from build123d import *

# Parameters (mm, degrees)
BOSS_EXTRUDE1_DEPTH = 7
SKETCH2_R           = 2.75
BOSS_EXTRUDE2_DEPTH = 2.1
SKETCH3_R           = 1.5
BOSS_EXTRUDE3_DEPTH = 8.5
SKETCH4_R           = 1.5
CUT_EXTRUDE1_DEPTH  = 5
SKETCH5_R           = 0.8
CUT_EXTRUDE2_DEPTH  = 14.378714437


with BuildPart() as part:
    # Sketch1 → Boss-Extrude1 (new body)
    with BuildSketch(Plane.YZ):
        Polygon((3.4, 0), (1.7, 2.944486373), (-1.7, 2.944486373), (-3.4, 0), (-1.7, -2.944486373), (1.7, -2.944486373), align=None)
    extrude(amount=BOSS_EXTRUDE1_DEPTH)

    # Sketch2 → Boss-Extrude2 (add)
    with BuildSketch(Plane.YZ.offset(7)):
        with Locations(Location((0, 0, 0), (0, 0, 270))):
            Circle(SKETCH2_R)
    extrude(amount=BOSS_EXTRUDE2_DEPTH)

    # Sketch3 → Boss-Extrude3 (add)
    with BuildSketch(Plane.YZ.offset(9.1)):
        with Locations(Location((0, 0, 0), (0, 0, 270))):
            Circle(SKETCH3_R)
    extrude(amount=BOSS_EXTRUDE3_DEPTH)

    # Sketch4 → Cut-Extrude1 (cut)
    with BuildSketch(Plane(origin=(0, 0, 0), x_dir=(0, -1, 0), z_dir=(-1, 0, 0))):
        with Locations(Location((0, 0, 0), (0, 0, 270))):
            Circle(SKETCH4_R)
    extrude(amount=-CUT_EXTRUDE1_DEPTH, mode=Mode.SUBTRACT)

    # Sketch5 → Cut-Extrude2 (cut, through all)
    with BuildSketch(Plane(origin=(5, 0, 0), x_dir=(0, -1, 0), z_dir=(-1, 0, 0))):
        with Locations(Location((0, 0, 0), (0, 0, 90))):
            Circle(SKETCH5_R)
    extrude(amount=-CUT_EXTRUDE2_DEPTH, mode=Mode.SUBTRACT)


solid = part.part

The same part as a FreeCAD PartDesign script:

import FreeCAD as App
import Part
import Sketcher
from FreeCAD import Vector
Q = App.Units.Quantity

doc = App.newDocument("Part")
params = doc.addObject("Spreadsheet::Sheet", "Params")
for row, (alias, value) in enumerate([
    ("sketch1_width", "3.4 mm"),
    ("sketch1_length", "3.4 mm"),
    ("pad1_length", "7 mm"),
    ("sketch2_diameter", "5.5 mm"),
    ("pad2_length", "2.1 mm"),
    ("sketch3_diameter", "3 mm"),
    ("pad3_length", "8.5 mm"),
    ("sketch4_diameter", "3 mm"),
    ("pocket1_length", "5 mm"),
    ("sketch5_diameter", "1.6 mm"),
], start=1):
    params.set(f"A{row}", alias)
    params.set(f"B{row}", "=" + value)
    params.setAlias(f"B{row}", alias)

body = doc.addObject("PartDesign::Body", "Body")

# Sketch on YZ plane
sketch1 = body.newObject("Sketcher::SketchObject", "Sketch")
sketch1.AttachmentSupport = (doc.getObject("YZ_Plane"), [""])
sketch1.MapMode = "FlatFace"
sketch1.addGeometry([
    Part.LineSegment(Vector(3.4, 0, 0), Vector(1.7, 2.944486, 0)),  # 0
    Part.LineSegment(Vector(1.7, 2.944486, 0), Vector(-1.7, 2.944486, 0)),  # 1
    Part.LineSegment(Vector(-1.7, 2.944486, 0), Vector(-3.4, 0, 0)),  # 2
    Part.LineSegment(Vector(-3.4, 0, 0), Vector(-1.7, -2.944486, 0)),  # 3
    Part.LineSegment(Vector(-1.7, -2.944486, 0), Vector(1.7, -2.944486, 0)),  # 4
    Part.LineSegment(Vector(1.7, -2.944486, 0), Vector(3.4, 0, 0)),  # 5
], False)
sketch1.addConstraint([
    Sketcher.Constraint("Coincident", 0, 2, 1, 1),
    Sketcher.Constraint("Coincident", 1, 2, 2, 1),
    Sketcher.Constraint("Coincident", 2, 2, 3, 1),
    Sketcher.Constraint("Coincident", 3, 2, 4, 1),
    Sketcher.Constraint("Coincident", 4, 2, 5, 1),
    Sketcher.Constraint("Coincident", 5, 2, 0, 1),
    Sketcher.Constraint("Horizontal", 1),
    Sketcher.Constraint("Horizontal", 4),
    Sketcher.Constraint("Symmetric", 0, 2, 3, 2, -1, 1),
    Sketcher.Constraint("Symmetric", 2, 2, 5, 2, -1, 1),
    Sketcher.Constraint("PointOnObject", 2, 2, -1),
    Sketcher.Constraint("Parallel", 2, 5),
    Sketcher.Constraint("Vertical", 1, 2, 3, 2),
    Sketcher.Constraint("Angle", 0, Q("120 deg")),
    Sketcher.Constraint("DistanceX", 1, 2, 1, 1, 3.4),
    Sketcher.Constraint("Distance", 0, 3.4),
])
sketch1.setExpression("Constraints[14]", "Params.sketch1_width")
sketch1.setExpression("Constraints[15]", "Params.sketch1_length")
pad1 = body.newObject("PartDesign::Pad", "Pad")
pad1.Profile = sketch1
pad1.setExpression("Length", "Params.pad1_length")

# Sketch on YZ plane
sketch2 = body.newObject("Sketcher::SketchObject", "Sketch001")
sketch2.AttachmentSupport = (doc.getObject("YZ_Plane"), [""])
sketch2.MapMode = "FlatFace"
sketch2.AttachmentOffset = App.Placement(Vector(0, 0, 7), App.Rotation())
sketch2.addGeometry(Part.Circle(Vector(0, 0, 0), Vector(0, 0, 1), 2.75), False)
sketch2.addConstraint([
    Sketcher.Constraint("Coincident", 0, 3, -1, 1),
    Sketcher.Constraint("Diameter", 0, 5.5),
])
sketch2.setExpression("Constraints[1]", "Params.sketch2_diameter")
pad2 = body.newObject("PartDesign::Pad", "Pad001")
pad2.Profile = sketch2
pad2.setExpression("Length", "Params.pad2_length")

# Sketch on YZ plane
sketch3 = body.newObject("Sketcher::SketchObject", "Sketch002")
sketch3.AttachmentSupport = (doc.getObject("YZ_Plane"), [""])
sketch3.MapMode = "FlatFace"
sketch3.AttachmentOffset = App.Placement(Vector(0, 0, 9.1), App.Rotation())
sketch3.addGeometry(Part.Circle(Vector(0, 0, 0), Vector(0, 0, 1), 1.5), False)
sketch3.addConstraint([
    Sketcher.Constraint("Coincident", 0, 3, -1, 1),
    Sketcher.Constraint("Diameter", 0, 3.0),
])
sketch3.setExpression("Constraints[1]", "Params.sketch3_diameter")
pad3 = body.newObject("PartDesign::Pad", "Pad002")
pad3.Profile = sketch3
pad3.setExpression("Length", "Params.pad3_length")

# Sketch on YZ plane
sketch4 = body.newObject("Sketcher::SketchObject", "Sketch003")
sketch4.AttachmentSupport = (doc.getObject("YZ_Plane"), [""])
sketch4.MapMode = "FlatFace"
sketch4.addGeometry(Part.Circle(Vector(0, 0, 0), Vector(0, 0, 1), 1.5), False)
sketch4.addConstraint([
    Sketcher.Constraint("Coincident", 0, 3, -1, 1),
    Sketcher.Constraint("Diameter", 0, 3.0),
])
sketch4.setExpression("Constraints[1]", "Params.sketch4_diameter")
pocket1 = body.newObject("PartDesign::Pocket", "Pocket")
pocket1.Profile = sketch4
pocket1.setExpression("Length", "Params.pocket1_length")
pocket1.Reversed = True

# Sketch on YZ plane
sketch5 = body.newObject("Sketcher::SketchObject", "Sketch004")
sketch5.AttachmentSupport = (doc.getObject("YZ_Plane"), [""])
sketch5.MapMode = "FlatFace"
sketch5.AttachmentOffset = App.Placement(Vector(0, 0, 5), App.Rotation())
sketch5.addGeometry(Part.Circle(Vector(0, 0, 0), Vector(0, 0, 1), 0.8), False)
sketch5.addConstraint([
    Sketcher.Constraint("Coincident", 0, 3, -1, 1),
    Sketcher.Constraint("Diameter", 0, 1.6),
])
sketch5.setExpression("Constraints[1]", "Params.sketch5_diameter")
pocket2 = body.newObject("PartDesign::Pocket", "Pocket001")
pocket2.Profile = sketch5
pocket2.Type = "ThroughAll"
pocket2.Reversed = True

doc.recompute()
